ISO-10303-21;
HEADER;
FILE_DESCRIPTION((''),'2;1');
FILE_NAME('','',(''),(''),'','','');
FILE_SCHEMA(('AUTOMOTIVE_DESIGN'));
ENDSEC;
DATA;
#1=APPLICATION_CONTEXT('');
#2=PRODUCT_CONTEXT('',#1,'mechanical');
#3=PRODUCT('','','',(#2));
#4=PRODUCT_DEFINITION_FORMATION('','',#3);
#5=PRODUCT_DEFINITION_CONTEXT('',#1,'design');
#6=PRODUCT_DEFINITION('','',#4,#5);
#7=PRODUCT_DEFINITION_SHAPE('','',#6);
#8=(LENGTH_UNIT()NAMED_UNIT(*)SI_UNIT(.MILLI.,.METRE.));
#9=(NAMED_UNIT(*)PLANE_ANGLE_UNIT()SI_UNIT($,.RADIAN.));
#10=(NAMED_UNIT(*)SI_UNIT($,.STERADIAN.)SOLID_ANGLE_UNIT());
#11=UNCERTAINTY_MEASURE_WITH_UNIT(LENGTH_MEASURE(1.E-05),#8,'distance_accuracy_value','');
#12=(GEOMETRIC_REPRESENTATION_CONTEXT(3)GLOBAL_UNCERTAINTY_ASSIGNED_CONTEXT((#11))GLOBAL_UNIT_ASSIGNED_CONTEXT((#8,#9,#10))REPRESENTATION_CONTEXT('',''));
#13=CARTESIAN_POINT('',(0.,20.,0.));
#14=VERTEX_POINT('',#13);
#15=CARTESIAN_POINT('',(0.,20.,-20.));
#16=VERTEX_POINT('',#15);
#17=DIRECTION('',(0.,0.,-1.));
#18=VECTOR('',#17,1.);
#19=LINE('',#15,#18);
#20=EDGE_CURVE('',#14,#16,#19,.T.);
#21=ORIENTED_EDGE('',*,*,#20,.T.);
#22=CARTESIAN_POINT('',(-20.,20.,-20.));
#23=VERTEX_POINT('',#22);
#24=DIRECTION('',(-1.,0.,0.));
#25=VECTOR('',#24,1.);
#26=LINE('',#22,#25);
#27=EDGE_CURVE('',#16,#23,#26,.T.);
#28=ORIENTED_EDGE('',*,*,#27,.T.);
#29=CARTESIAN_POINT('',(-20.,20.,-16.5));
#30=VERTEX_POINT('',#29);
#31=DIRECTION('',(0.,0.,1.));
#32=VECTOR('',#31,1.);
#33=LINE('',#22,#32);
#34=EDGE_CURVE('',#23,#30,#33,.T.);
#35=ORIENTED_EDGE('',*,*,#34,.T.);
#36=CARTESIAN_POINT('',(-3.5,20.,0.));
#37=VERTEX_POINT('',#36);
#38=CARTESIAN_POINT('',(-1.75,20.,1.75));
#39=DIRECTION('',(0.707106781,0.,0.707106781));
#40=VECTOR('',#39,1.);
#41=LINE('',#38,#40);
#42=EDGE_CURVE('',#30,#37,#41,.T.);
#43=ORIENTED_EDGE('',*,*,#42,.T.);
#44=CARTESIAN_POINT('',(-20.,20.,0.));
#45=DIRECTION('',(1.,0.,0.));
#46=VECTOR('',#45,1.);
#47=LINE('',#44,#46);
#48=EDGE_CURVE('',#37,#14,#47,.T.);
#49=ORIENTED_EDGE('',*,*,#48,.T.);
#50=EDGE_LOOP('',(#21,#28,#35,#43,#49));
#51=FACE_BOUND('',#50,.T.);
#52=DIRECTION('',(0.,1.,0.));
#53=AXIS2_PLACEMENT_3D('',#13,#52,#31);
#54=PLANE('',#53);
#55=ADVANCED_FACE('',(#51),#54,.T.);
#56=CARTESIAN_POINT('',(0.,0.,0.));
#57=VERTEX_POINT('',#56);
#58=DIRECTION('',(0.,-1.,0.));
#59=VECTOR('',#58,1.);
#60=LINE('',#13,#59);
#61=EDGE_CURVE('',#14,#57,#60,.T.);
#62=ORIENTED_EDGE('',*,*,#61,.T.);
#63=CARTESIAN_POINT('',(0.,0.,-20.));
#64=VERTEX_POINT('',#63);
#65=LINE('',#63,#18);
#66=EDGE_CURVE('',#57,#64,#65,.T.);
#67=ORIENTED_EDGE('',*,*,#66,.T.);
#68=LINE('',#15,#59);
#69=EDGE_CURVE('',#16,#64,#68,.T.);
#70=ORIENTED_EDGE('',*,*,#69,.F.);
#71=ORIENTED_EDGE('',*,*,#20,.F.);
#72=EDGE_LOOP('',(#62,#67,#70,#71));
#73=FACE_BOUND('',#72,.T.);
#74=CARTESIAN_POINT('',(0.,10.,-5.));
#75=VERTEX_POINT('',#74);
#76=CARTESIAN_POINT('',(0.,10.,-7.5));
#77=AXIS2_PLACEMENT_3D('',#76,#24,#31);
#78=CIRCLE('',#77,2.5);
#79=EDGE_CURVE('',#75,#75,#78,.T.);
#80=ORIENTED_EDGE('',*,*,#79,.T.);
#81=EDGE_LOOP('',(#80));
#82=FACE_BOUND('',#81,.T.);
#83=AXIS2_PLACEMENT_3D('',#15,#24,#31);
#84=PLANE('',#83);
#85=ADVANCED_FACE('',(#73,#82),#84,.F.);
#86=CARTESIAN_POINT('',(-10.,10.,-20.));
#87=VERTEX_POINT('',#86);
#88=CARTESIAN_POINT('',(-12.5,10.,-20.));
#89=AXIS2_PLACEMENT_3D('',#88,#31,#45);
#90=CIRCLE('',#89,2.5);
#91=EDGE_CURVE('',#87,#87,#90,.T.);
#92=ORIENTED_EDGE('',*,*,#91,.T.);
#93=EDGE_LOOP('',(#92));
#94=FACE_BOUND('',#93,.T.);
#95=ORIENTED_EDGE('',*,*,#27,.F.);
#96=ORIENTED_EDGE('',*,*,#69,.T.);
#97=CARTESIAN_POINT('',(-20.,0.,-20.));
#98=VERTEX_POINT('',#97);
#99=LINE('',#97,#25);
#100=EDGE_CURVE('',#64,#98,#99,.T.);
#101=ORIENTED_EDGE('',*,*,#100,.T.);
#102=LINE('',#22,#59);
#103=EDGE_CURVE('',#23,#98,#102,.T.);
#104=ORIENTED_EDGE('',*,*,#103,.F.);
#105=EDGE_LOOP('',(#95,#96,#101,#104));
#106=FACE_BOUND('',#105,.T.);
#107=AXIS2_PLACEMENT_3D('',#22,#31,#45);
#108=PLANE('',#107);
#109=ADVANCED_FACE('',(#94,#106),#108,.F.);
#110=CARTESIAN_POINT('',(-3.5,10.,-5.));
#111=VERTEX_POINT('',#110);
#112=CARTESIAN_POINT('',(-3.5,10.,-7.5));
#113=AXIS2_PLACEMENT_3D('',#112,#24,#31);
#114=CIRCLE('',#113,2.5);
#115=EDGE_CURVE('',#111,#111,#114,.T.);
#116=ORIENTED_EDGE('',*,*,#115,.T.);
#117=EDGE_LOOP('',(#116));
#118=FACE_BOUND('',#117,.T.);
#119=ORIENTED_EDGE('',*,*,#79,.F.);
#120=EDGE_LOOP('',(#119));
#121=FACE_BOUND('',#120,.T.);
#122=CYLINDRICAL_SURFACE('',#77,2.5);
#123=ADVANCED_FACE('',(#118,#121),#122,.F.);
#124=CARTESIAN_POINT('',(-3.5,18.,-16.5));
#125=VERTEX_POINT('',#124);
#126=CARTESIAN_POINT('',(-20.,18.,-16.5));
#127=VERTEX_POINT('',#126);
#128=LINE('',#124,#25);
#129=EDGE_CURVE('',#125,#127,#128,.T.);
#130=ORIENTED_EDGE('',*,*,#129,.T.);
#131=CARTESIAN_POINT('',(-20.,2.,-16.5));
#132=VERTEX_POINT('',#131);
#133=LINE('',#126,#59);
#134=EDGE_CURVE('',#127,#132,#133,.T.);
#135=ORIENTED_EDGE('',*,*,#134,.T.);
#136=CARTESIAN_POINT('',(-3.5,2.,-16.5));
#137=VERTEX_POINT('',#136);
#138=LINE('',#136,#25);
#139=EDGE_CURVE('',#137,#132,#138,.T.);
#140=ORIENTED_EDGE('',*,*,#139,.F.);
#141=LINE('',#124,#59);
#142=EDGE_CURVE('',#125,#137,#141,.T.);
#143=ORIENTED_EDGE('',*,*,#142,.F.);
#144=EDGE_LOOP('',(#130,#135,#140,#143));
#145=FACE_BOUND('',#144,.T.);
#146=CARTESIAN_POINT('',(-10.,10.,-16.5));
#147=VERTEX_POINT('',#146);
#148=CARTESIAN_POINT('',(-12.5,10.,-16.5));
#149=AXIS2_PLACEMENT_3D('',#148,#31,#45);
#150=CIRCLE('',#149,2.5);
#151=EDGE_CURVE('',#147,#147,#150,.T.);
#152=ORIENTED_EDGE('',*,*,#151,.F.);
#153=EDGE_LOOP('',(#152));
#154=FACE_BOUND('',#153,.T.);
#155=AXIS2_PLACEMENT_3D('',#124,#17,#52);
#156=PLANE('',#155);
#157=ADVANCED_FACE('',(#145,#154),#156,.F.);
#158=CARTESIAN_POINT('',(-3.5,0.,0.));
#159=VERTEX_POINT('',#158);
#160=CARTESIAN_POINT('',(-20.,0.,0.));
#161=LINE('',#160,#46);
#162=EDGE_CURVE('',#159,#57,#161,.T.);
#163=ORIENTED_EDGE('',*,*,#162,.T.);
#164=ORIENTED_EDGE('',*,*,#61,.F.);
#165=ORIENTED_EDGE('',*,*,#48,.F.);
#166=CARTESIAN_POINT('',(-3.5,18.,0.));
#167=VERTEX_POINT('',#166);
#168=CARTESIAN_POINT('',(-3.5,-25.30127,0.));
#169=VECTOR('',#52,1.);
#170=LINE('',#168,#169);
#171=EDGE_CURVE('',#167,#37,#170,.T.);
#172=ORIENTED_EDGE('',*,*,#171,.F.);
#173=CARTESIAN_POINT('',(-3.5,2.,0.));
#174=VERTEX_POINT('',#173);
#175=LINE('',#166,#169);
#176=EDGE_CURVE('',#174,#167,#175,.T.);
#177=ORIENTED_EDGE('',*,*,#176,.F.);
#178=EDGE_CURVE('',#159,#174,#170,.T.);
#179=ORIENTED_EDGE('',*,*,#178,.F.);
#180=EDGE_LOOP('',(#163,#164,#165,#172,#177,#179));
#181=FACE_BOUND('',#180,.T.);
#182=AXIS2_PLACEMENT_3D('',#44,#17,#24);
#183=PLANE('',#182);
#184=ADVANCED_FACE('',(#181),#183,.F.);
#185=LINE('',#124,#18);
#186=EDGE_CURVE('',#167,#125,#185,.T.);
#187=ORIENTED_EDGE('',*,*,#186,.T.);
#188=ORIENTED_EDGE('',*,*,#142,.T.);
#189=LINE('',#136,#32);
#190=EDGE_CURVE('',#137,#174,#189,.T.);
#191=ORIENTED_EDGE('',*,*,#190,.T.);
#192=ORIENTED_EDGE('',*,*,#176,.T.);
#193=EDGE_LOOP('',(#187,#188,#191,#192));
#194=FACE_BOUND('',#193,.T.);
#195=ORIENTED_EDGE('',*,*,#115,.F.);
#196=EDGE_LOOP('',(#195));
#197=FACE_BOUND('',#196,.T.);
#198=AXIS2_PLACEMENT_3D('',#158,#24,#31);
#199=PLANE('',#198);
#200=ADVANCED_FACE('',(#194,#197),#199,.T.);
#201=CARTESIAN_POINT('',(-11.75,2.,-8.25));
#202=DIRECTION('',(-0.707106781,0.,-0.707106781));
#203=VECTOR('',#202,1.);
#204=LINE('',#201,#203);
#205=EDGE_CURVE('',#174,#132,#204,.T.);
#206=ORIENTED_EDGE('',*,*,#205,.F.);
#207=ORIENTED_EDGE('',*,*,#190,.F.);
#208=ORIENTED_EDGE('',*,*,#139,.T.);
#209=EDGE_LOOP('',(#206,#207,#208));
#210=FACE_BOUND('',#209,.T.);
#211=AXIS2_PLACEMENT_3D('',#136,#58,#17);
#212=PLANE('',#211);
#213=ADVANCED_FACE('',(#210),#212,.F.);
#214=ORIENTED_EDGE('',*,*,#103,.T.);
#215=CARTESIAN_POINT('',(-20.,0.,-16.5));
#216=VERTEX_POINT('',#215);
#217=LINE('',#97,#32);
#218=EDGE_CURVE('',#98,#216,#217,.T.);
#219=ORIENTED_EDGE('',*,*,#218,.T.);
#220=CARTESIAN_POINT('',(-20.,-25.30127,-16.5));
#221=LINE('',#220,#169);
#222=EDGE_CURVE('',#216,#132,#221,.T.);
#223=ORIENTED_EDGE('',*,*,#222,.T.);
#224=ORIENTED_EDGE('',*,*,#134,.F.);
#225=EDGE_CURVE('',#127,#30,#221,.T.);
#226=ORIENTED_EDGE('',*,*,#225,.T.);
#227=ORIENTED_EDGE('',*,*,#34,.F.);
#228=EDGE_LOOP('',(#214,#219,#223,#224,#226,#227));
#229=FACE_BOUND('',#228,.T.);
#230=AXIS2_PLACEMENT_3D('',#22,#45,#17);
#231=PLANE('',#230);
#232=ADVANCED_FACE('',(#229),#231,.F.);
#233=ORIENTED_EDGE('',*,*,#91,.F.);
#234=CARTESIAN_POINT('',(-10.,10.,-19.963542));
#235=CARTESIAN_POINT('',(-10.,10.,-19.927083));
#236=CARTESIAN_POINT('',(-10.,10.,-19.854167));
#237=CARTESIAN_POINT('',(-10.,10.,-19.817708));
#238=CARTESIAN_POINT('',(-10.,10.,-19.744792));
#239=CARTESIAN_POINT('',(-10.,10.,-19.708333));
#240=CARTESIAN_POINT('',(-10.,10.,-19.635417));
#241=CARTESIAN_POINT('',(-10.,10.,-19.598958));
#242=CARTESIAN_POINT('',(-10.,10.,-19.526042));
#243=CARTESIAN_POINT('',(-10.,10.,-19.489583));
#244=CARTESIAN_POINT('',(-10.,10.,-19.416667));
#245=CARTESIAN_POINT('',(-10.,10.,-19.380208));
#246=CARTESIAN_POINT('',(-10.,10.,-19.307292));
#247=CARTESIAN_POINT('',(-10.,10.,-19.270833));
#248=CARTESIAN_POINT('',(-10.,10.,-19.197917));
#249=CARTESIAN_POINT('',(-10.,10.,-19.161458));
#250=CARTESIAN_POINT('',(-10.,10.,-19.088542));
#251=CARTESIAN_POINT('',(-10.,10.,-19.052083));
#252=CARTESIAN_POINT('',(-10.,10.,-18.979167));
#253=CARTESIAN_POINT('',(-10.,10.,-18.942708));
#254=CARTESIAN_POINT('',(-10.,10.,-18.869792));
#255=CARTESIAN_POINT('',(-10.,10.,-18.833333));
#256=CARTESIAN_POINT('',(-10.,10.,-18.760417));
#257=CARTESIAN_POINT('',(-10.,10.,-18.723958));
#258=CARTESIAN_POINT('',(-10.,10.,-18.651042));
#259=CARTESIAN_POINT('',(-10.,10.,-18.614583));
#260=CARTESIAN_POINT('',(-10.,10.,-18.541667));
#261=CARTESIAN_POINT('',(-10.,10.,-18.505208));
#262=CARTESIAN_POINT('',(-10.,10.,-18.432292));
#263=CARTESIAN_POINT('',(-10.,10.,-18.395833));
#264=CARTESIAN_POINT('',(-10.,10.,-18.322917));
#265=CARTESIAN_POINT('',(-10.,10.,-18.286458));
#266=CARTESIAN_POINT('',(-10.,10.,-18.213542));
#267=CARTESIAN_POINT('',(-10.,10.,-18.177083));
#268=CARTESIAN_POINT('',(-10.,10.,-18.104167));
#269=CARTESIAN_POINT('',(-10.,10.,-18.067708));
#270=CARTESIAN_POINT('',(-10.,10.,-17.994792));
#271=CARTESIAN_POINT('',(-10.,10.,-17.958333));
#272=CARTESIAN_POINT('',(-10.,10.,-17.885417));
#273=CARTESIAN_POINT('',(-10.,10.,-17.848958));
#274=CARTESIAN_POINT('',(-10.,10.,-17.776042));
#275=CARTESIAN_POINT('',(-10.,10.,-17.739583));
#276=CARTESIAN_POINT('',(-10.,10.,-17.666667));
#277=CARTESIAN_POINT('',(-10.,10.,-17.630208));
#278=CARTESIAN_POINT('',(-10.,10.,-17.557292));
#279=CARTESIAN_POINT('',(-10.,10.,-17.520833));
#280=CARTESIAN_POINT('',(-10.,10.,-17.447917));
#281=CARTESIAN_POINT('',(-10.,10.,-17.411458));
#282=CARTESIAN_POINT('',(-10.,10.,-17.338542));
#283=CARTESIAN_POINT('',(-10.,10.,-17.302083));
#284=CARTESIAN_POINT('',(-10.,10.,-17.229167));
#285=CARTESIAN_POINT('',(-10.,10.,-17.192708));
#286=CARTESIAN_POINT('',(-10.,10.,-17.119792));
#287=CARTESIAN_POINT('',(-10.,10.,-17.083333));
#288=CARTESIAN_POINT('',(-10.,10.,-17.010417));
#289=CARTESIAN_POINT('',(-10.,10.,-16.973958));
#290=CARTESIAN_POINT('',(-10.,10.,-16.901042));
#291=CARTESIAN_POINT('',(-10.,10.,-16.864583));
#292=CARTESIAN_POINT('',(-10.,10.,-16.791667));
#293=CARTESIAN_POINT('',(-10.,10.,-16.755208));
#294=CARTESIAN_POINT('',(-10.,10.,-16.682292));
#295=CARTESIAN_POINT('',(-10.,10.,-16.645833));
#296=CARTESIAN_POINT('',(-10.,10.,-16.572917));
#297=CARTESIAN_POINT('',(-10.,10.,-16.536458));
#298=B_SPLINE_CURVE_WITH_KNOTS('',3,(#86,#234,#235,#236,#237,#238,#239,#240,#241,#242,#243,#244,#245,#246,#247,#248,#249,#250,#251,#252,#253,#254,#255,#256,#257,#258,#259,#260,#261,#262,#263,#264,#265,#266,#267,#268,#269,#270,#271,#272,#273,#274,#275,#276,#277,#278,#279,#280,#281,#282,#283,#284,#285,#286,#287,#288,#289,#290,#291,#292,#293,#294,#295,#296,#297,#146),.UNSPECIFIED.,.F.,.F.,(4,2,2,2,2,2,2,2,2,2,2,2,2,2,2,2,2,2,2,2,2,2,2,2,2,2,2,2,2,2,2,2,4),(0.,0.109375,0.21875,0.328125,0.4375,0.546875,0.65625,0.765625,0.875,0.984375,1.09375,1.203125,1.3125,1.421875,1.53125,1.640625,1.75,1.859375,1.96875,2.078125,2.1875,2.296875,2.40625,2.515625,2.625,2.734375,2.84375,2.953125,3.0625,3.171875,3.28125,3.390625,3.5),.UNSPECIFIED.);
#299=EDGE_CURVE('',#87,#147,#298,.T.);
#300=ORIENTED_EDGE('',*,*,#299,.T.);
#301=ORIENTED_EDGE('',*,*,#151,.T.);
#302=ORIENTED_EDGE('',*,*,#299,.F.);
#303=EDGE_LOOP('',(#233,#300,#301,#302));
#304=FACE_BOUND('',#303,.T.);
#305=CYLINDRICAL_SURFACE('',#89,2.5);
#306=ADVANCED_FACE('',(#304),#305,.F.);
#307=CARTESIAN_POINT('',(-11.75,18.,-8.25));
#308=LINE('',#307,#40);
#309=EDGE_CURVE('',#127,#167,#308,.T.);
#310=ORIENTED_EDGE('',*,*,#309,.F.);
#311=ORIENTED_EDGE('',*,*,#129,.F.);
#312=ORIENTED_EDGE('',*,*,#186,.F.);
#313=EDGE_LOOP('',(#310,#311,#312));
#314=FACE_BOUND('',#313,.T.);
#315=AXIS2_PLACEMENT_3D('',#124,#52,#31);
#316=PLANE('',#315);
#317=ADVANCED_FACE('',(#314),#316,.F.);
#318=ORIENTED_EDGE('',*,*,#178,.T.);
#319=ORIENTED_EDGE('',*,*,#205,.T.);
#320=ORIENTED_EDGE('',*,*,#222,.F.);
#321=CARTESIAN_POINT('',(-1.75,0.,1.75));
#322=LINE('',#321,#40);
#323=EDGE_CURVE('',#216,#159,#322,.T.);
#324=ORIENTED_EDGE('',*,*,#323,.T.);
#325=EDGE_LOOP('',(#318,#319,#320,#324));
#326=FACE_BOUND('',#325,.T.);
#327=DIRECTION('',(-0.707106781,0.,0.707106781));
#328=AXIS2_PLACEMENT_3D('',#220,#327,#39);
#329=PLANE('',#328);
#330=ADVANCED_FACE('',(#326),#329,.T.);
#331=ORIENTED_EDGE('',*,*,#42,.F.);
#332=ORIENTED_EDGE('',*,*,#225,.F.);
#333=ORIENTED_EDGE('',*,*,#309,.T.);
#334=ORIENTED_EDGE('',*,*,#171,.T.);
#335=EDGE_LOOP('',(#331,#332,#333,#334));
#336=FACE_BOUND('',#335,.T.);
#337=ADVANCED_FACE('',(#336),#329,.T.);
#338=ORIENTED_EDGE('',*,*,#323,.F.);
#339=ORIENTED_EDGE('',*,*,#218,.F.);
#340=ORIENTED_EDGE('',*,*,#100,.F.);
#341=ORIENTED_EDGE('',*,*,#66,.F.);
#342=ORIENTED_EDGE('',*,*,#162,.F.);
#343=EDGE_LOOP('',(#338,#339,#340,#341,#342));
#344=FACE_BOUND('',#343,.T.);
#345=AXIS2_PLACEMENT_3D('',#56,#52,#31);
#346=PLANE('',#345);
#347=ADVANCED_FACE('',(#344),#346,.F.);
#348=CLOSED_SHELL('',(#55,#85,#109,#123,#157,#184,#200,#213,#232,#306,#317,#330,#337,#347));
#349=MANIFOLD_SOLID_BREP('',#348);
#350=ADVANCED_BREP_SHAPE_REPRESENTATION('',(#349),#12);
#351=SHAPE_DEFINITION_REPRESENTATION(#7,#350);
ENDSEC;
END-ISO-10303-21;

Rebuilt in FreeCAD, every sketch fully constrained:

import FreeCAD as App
import Part
import Sketcher

V = App.Vector
Q = App.Units.Quantity

doc = App.newDocument("Part")
body = doc.addObject("PartDesign::Body", "Body")

# Sketch on XZ plane
sketch1 = body.newObject("Sketcher::SketchObject", "Sketch")
sketch1.AttachmentSupport = (doc.getObject("XZ_Plane"), [""])
sketch1.MapMode = "FlatFace"
sketch1.addGeometry([
    Part.LineSegment(V(-20, -20, 0), V(-20, 0, 0)),
    Part.LineSegment(V(-20, 0, 0), V(0, 0, 0)),
    Part.LineSegment(V(0, 0, 0), V(0, -20, 0)),
    Part.LineSegment(V(0, -20, 0), V(-20, -20, 0)),
], False)
sketch1.addConstraint([
    Sketcher.Constraint("Coincident", 0, 2, 1, 1),
    Sketcher.Constraint("Coincident", 1, 2, 2, 1),
    Sketcher.Constraint("Coincident", 2, 2, 3, 1),
    Sketcher.Constraint("Coincident", 3, 2, 0, 1),
    Sketcher.Constraint("Vertical", 0),
    Sketcher.Constraint("Horizontal", 1),
    Sketcher.Constraint("Vertical", 2),
    Sketcher.Constraint("Horizontal", 3),
    Sketcher.Constraint("Coincident", 1, 2, -1, 1),
    Sketcher.Constraint("Equal", 3, 0),
    Sketcher.Constraint("DistanceX", 1, 1, 1, 2, 20.0),
])
pad1 = body.newObject("PartDesign::Pad", "Pad")
pad1.Profile = sketch1
pad1.Length = 20
pad1.Reversed = True

# Sketch on YZ plane
sketch2 = body.newObject("Sketcher::SketchObject", "Sketch001")
sketch2.AttachmentSupport = (doc.getObject("YZ_Plane"), [""])
sketch2.MapMode = "FlatFace"
sketch2.AttachmentOffset = App.Placement(V(0, 0, -20), App.Rotation())
sketch2.addGeometry([
    Part.LineSegment(V(18, -16, 0), V(2, -16, 0)),
    Part.LineSegment(V(2, -16, 0), V(2, 0, 0)),
    Part.LineSegment(V(2, 0, 0), V(18, 0, 0)),
    Part.LineSegment(V(18, 0, 0), V(18, -16, 0)),
], False)
sketch2.addConstraint([
    Sketcher.Constraint("Coincident", 0, 2, 1, 1),
    Sketcher.Constraint("Coincident", 1, 2, 2, 1),
    Sketcher.Constraint("Coincident", 2, 2, 3, 1),
    Sketcher.Constraint("Coincident", 3, 2, 0, 1),
    Sketcher.Constraint("Horizontal", 0),
    Sketcher.Constraint("Vertical", 1),
    Sketcher.Constraint("Horizontal", 2),
    Sketcher.Constraint("Vertical", 3),
    Sketcher.Constraint("PointOnObject", 1, 2, -1),
    Sketcher.Constraint("DistanceX", 0, 2, 0, 1, 16.0),
    Sketcher.Constraint("DistanceY", 1, 1, 1, 2, 16.5),
    Sketcher.Constraint("DistanceX", -1, 1, 0, 2, 2.0),
])
pocket1 = body.newObject("PartDesign::Pocket", "Pocket")
pocket1.Profile = sketch2
pocket1.Length = 16.5
pocket1.Reversed = True

# Sketch on XZ plane
sketch3 = body.newObject("Sketcher::SketchObject", "Sketch002")
sketch3.AttachmentSupport = (doc.getObject("XZ_Plane"), [""])
sketch3.MapMode = "FlatFace"
sketch3.AttachmentOffset = App.Placement(V(0, 0, -18), App.Rotation())
sketch3.addGeometry([
    Part.LineSegment(V(-64, -60, 0), V(40, 44, 0)),
    Part.LineSegment(V(40, 44, 0), V(-47, 131, 0)),
    Part.LineSegment(V(-47, 131, 0), V(-151, 27, 0)),
    Part.LineSegment(V(-151, 27, 0), V(-64, -60, 0)),
], False)
sketch3.addConstraint([
    Sketcher.Constraint("Coincident", 0, 2, 1, 1),
    Sketcher.Constraint("Coincident", 1, 2, 2, 1),
    Sketcher.Constraint("Coincident", 2, 2, 3, 1),
    Sketcher.Constraint("Coincident", 3, 2, 0, 1),
    Sketcher.Constraint("Perpendicular", 0, 1),
    Sketcher.Constraint("Perpendicular", 1, 2),
    Sketcher.Constraint("Perpendicular", 2, 3),
    Sketcher.Constraint("Angle", 0, Q("45 deg")),
    Sketcher.Constraint("DistanceY", 2, 2, 0, 2, 16.5),
    Sketcher.Constraint("Distance", 0, 147.045661),
    Sketcher.Constraint("DistanceX", -1, 1, 0, 2, 40.238492),
    Sketcher.Constraint("DistanceY", -1, 1, 0, 2, 43.738492),
])
pocket2 = body.newObject("PartDesign::Pocket", "Pocket001")
pocket2.Profile = sketch3
pocket2.Type = "ThroughAll"
pocket2.Midplane = True

# Sketch on YZ plane
sketch4 = body.newObject("Sketcher::SketchObject", "Sketch003")
sketch4.AttachmentSupport = (doc.getObject("YZ_Plane"), [""])
sketch4.MapMode = "FlatFace"
sketch4.AttachmentOffset = App.Placement(V(0, 0, -3.5), App.Rotation())
sketch4.addGeometry(Part.Circle(V(10, -7.5, 0), V(0, 0, 1), 2.5), False)
sketch4.addConstraint([
    Sketcher.Constraint("Diameter", 0, 5.0),
    Sketcher.Constraint("DistanceX", -1, 1, 0, 3, 10.0),
    Sketcher.Constraint("DistanceY", 0, 3, -1, 1, 7.5),
])
pocket3 = body.newObject("PartDesign::Pocket", "Pocket002")
pocket3.Profile = sketch4
pocket3.Type = "ThroughAll"
pocket3.Midplane = True

# Sketch on XY plane
sketch5 = body.newObject("Sketcher::SketchObject", "Sketch004")
sketch5.AttachmentSupport = (doc.getObject("XY_Plane"), [""])
sketch5.MapMode = "FlatFace"
sketch5.AttachmentOffset = App.Placement(V(0, 0, -16.5), App.Rotation())
sketch5.addGeometry(Part.Circle(V(-12.5, 10, 0), V(0, 0, 1), 2.5), False)
sketch5.addConstraint([
    Sketcher.Constraint("Diameter", 0, 5.0),
    Sketcher.Constraint("DistanceY", -1, 1, 0, 3, 10.0),
    Sketcher.Constraint("DistanceX", 0, 3, -1, 1, 12.5),
])
pocket4 = body.newObject("PartDesign::Pocket", "Pocket003")
pocket4.Profile = sketch5
pocket4.Type = "ThroughAll"
pocket4.Midplane = True

doc.recompute()
